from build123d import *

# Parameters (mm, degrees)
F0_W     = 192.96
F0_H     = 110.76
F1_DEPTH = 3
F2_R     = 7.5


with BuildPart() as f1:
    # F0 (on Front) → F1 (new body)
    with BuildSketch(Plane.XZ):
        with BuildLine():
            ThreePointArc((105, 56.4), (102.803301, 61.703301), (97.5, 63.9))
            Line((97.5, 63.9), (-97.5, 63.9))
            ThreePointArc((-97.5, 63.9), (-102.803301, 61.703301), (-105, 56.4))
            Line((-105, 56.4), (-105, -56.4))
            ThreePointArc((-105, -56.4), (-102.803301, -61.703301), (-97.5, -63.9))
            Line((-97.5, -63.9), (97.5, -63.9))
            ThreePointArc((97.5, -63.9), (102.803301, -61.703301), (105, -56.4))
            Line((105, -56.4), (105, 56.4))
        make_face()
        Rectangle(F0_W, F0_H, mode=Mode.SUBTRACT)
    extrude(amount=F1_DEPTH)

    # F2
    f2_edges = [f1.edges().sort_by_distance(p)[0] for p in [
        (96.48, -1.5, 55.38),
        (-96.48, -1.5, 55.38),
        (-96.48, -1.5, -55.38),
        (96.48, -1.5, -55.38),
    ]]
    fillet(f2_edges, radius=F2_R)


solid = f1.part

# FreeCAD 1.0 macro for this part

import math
import FreeCAD as App
import Part
import Sketcher
from FreeCAD import Vector
Q = App.Units.Quantity


def edges_at(feature, points):
    """Names of the edges that pass closest to the given points."""
    edges = feature.Shape.Edges
    near = lambda p: min(range(len(edges)), key=lambda i: edges[i].distToShape(Part.Vertex(*p))[0])
    return sorted({f"Edge{near(p) + 1}" for p in points})


def add_polygon(sketch, points):
    """Adds a closed chain of lines whose ends are joined by coincident constraints."""
    first, n = sketch.GeometryCount, len(points)
    for a, b in zip(points, points[1:] + points[:1]):
        sketch.addGeometry(Part.LineSegment(App.Vector(*a, 0), App.Vector(*b, 0)), False)
    for i in range(n):
        sketch.addConstraint(Sketcher.Constraint("Coincident", first + i, 2, first + (i + 1) % n, 1))

doc = App.newDocument("Part")
body = doc.addObject("PartDesign::Body", "Body")

# Sketch on XZ plane
sketch1 = body.newObject("Sketcher::SketchObject", "Sketch")
sketch1.AttachmentSupport = (doc.getObject("XZ_Plane"), [""])
sketch1.MapMode = "FlatFace"
sketch1.addGeometry(Part.ArcOfCircle(Part.Circle(Vector(98, 56, 0), Vector(0, 0, 1), 7), math.radians(0), math.radians(90)), False)  # 0
sketch1.addGeometry(Part.LineSegment(Vector(98, 64, 0), Vector(-98, 64, 0)), False)  # 1
sketch1.addGeometry(Part.ArcOfCircle(Part.Circle(Vector(-98, 56, 0), Vector(0, 0, 1), 7), math.radians(90), math.radians(180)), False)  # 2
sketch1.addGeometry(Part.LineSegment(Vector(-105, 56, 0), Vector(-105, -56, 0)), False)  # 3
sketch1.addGeometry(Part.ArcOfCircle(Part.Circle(Vector(-98, -56, 0), Vector(0, 0, 1), 7), math.radians(180), math.radians(270)), False)  # 4
sketch1.addGeometry(Part.LineSegment(Vector(-98, -64, 0), Vector(98, -64, 0)), False)  # 5
sketch1.addGeometry(Part.ArcOfCircle(Part.Circle(Vector(98, -56, 0), Vector(0, 0, 1), 7), math.radians(-90), math.radians(0)), False)  # 6
sketch1.addGeometry(Part.LineSegment(Vector(105, -56, 0), Vector(105, 56, 0)), False)  # 7
add_polygon(sketch1, [(96, -55), (-96, -55), (-96, 55), (96, 55)])  # lines 8-11
sketch1.addConstraint(Sketcher.Constraint("Tangent", 0, 2, 1, 1))
sketch1.addConstraint(Sketcher.Constraint("Tangent", 1, 2, 2, 1))
sketch1.addConstraint(Sketcher.Constraint("Tangent", 2, 2, 3, 1))
sketch1.addConstraint(Sketcher.Constraint("Tangent", 3, 2, 4, 1))
sketch1.addConstraint(Sketcher.Constraint("Tangent", 4, 2, 5, 1))
sketch1.addConstraint(Sketcher.Constraint("Tangent", 5, 2, 6, 1))
sketch1.addConstraint(Sketcher.Constraint("Tangent", 6, 2, 7, 1))
sketch1.addConstraint(Sketcher.Constraint("Tangent", 7, 2, 0, 1))
sketch1.addConstraint(Sketcher.Constraint("Horizontal", 1))
sketch1.addConstraint(Sketcher.Constraint("Vertical", 3))
sketch1.addConstraint(Sketcher.Constraint("Horizontal", 5))
sketch1.addConstraint(Sketcher.Constraint("Vertical", 7))
sketch1.addConstraint(Sketcher.Constraint("Horizontal", 8))
sketch1.addConstraint(Sketcher.Constraint("Vertical", 9))
sketch1.addConstraint(Sketcher.Constraint("Horizontal", 10))
sketch1.addConstraint(Sketcher.Constraint("Vertical", 11))
sketch1.addConstraint(Sketcher.Constraint("Equal", 0, 2))
sketch1.addConstraint(Sketcher.Constraint("Equal", 2, 4))
sketch1.addConstraint(Sketcher.Constraint("Equal", 4, 6))
sketch1.addConstraint(Sketcher.Constraint("Symmetric", 0, 3, 4, 3, -1, 1))
sketch1.addConstraint(Sketcher.Constraint("Symmetric", 8, 2, 10, 2, -1, 1))
sketch1.addConstraint(Sketcher.Constraint("Radius", 0, Q("7.5 mm")))
sketch1.addConstraint(Sketcher.Constraint("DistanceX", 1, 2, 1, 1, Q("195 mm")))
sketch1.addConstraint(Sketcher.Constraint("DistanceY", 3, 2, 3, 1, Q("112.8 mm")))
sketch1.addConstraint(Sketcher.Constraint("DistanceX", 8, 2, 8, 1, Q("192.96 mm")))
sketch1.addConstraint(Sketcher.Constraint("DistanceY", 9, 1, 9, 2, Q("110.76 mm")))
pad1 = body.newObject("PartDesign::Pad", "Pad")
pad1.Profile = sketch1
pad1.Length = 3
doc.recompute()

fillet = body.newObject("PartDesign::Fillet", "Fillet")
fillet.Base = (pad1, edges_at(pad1, [
    (96.48, -1.5, 55.38),
    (-96.48, -1.5, 55.38),
    (-96.48, -1.5, -55.38),
    (96.48, -1.5, -55.38),
]))
fillet.Radius = 7.5

doc.recompute()
